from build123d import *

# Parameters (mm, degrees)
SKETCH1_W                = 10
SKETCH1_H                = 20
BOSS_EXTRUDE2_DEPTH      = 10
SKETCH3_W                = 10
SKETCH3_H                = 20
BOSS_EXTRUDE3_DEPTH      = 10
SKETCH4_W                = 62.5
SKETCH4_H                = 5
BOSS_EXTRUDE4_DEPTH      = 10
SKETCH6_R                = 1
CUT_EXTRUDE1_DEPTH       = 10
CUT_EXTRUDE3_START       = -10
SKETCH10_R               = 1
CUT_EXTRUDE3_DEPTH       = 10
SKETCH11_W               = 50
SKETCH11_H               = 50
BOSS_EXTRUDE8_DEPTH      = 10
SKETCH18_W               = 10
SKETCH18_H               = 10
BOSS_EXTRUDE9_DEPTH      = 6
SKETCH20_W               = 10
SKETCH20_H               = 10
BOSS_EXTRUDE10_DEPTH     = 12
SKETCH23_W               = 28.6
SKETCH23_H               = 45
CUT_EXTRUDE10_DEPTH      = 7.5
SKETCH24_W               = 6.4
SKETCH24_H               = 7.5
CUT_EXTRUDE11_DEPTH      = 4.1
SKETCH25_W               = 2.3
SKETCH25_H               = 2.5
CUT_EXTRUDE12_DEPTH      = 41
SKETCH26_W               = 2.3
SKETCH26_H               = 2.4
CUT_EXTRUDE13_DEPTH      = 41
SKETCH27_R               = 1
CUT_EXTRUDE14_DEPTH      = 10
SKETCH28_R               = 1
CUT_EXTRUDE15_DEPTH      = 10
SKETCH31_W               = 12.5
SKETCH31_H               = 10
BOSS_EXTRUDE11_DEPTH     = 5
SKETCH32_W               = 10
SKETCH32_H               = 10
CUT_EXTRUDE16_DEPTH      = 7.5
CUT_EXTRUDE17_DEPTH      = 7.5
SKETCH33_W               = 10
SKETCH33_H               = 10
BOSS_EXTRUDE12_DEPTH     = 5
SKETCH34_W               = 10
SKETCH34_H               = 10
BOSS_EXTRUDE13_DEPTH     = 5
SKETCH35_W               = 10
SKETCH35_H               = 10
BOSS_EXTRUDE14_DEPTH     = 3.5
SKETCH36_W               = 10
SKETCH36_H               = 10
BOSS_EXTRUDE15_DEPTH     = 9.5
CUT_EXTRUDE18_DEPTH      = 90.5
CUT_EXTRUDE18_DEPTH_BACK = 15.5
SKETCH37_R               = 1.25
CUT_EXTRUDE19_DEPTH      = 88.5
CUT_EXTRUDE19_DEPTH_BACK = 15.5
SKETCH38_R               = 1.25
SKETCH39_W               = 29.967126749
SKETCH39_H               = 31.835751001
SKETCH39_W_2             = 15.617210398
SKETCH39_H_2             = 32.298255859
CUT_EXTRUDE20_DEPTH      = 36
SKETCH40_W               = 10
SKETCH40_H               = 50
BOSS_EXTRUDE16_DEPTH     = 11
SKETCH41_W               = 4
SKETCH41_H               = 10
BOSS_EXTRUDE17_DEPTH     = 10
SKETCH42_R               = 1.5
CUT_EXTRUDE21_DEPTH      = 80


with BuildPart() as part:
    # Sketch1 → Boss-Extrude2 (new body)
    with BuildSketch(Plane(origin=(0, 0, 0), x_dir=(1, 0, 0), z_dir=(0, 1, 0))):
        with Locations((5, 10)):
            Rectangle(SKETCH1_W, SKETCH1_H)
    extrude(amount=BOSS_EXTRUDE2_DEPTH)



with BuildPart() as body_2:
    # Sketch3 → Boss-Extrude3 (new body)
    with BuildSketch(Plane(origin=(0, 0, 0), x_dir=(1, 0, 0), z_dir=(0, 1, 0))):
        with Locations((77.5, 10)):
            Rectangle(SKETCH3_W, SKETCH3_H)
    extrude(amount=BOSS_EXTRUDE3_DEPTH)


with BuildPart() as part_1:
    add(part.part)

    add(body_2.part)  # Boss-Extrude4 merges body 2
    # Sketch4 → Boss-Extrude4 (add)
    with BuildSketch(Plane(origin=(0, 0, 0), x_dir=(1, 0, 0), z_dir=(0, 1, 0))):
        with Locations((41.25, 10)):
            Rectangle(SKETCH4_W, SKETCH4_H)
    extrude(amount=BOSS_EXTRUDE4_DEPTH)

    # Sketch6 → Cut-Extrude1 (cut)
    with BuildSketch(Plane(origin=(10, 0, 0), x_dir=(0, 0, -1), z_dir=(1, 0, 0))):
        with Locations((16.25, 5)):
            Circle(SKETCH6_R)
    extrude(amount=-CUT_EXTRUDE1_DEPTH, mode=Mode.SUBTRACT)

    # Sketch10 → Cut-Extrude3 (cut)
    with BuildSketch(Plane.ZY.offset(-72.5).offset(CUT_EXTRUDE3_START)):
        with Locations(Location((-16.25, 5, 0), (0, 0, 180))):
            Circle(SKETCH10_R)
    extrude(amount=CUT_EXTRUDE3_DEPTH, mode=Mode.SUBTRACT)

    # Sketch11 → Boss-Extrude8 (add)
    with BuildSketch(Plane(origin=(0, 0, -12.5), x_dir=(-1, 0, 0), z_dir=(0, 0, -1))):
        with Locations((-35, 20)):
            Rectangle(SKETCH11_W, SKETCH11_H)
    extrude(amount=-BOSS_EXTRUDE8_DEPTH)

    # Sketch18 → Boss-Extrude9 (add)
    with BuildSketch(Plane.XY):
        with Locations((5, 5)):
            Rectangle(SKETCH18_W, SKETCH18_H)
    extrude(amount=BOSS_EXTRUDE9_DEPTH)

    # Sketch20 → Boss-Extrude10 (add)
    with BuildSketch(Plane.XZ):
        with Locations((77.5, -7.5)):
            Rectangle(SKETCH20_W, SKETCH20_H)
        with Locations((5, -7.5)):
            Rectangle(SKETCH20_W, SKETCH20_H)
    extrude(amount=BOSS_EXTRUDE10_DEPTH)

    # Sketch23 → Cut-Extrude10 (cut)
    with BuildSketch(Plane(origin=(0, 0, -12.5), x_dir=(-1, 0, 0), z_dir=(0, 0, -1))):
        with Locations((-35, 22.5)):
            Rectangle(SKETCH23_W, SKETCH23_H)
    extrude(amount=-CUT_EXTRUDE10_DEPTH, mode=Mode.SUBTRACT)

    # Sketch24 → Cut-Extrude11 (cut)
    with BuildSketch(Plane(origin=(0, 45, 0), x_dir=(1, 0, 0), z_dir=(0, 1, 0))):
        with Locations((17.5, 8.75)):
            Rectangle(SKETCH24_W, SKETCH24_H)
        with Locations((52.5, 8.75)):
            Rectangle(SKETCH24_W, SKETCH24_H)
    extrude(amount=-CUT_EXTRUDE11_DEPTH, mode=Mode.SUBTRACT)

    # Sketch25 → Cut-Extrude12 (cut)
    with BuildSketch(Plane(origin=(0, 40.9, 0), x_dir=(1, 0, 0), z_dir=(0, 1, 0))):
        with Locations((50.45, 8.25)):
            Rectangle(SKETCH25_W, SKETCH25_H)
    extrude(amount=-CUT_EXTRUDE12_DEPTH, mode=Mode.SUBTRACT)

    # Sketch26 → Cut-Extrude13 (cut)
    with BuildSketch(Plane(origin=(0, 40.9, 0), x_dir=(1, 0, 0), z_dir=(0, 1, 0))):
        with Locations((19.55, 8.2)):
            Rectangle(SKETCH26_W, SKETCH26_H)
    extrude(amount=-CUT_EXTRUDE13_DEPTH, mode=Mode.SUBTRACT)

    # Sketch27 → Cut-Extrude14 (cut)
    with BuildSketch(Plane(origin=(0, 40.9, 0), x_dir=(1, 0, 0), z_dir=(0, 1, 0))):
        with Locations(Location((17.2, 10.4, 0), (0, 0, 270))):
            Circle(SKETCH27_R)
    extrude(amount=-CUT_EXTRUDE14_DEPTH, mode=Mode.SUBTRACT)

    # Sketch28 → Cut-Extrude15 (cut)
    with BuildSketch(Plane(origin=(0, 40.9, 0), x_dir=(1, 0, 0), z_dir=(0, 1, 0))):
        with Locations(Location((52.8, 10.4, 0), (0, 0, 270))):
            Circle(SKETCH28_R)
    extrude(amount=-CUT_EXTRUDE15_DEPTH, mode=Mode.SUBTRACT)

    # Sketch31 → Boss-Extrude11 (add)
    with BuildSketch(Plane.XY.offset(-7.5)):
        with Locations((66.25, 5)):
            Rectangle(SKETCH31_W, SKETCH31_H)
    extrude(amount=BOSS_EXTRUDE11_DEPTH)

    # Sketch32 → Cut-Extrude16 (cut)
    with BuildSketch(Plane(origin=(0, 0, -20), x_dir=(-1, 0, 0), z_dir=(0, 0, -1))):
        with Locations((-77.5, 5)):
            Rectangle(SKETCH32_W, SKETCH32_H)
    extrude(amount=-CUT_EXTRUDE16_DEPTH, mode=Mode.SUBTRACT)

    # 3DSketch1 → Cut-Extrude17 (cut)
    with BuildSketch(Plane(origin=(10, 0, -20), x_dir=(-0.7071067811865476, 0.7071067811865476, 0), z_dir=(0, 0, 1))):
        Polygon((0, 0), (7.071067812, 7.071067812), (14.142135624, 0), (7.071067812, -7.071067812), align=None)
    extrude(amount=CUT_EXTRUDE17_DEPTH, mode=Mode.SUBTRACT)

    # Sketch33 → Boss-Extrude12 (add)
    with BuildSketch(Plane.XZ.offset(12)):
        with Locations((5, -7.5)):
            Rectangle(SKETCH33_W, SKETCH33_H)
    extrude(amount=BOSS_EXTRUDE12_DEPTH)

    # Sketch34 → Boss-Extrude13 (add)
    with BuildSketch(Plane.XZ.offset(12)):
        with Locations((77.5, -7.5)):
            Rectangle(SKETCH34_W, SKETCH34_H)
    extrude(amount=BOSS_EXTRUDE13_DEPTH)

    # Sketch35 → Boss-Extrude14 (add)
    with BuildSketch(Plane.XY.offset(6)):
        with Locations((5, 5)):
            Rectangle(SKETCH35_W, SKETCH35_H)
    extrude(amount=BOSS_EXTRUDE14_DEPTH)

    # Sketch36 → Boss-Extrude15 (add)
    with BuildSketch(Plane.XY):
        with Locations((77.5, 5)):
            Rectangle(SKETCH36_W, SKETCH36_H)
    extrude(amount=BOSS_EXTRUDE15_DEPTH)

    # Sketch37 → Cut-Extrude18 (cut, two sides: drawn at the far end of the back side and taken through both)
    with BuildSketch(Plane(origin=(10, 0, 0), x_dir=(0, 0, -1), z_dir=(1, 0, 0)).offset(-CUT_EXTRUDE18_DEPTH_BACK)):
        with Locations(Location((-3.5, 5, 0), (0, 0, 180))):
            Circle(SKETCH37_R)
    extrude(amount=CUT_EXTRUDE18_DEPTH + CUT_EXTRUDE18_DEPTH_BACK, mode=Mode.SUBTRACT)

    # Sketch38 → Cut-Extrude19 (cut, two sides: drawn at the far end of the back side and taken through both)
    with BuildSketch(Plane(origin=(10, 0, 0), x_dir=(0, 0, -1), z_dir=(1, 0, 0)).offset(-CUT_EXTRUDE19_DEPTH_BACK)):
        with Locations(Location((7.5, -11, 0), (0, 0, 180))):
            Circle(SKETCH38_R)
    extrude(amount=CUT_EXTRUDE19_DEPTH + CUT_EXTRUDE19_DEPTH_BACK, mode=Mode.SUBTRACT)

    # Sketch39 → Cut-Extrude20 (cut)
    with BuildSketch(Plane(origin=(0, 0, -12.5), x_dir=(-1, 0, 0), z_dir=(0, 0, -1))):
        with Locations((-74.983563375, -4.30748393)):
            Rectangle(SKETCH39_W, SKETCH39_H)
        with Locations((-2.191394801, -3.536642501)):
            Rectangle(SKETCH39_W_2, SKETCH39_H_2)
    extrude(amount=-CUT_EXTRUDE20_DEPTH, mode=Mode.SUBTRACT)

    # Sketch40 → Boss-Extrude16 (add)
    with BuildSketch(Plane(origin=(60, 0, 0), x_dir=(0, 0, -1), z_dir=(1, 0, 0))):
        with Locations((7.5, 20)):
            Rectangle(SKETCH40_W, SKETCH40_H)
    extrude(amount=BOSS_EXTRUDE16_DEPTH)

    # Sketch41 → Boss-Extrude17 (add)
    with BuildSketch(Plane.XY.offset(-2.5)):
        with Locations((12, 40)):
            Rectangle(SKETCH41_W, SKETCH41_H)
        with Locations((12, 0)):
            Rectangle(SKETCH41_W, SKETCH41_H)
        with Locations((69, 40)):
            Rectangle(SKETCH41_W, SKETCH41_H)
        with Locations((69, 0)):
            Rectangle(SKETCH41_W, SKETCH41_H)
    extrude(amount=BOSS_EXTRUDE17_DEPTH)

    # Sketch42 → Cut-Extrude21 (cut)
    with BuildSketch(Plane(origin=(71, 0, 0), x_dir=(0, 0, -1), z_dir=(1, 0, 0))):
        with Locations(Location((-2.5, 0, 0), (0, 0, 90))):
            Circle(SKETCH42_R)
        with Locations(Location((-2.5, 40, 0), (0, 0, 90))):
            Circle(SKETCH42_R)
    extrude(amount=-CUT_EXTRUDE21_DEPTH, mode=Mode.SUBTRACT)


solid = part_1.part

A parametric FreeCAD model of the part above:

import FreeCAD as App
import Part
import Sketcher


def add_polygon(sketch, points):
    """Adds a closed chain of lines whose ends are joined by coincident constraints."""
    first, n = sketch.GeometryCount, len(points)
    for a, b in zip(points, points[1:] + points[:1]):
        sketch.addGeometry(Part.LineSegment(App.Vector(*a, 0), App.Vector(*b, 0)), False)
    for i in range(n):
        sketch.addConstraint(Sketcher.Constraint("Coincident", first + i, 2, first + (i + 1) % n, 1))

doc = App.newDocument("Part")
body = doc.addObject("PartDesign::Body", "Body")

sketch1 = body.newObject("Sketcher::SketchObject", "Sketch")
sketch1.AttachmentSupport = (doc.getObject("XZ_Plane"), [""])
sketch1.MapMode = "FlatFace"
add_polygon(sketch1, [(0, -20), (0, 0), (10, 0), (10, -20)])
sketch1.addConstraint([
    Sketcher.Constraint("Vertical", 0),
    Sketcher.Constraint("Horizontal", 1),
    Sketcher.Constraint("Vertical", 2),
    Sketcher.Constraint("Horizontal", 3),
    Sketcher.Constraint("Coincident", 0, 2, -1, 1),
    Sketcher.Constraint("DistanceX", 1, 1, 1, 2, 10.0),
    Sketcher.Constraint("DistanceY", 0, 1, 0, 2, 20.0),
])
pad1 = body.newObject("PartDesign::Pad", "Pad")
pad1.Profile = sketch1
pad1.Length = 10
pad1.Reversed = True
body2 = doc.addObject("PartDesign::Body", "Body001")

sketch2 = body2.newObject("Sketcher::SketchObject", "Sketch001")
sketch2.AttachmentSupport = (doc.getObject("XZ_Plane001"), [""])
sketch2.MapMode = "FlatFace"
add_polygon(sketch2, [(72.5, -20), (72.5, 0), (82.5, 0), (82.5, -20)])
sketch2.addConstraint([
    Sketcher.Constraint("Vertical", 0),
    Sketcher.Constraint("Horizontal", 1),
    Sketcher.Constraint("Vertical", 2),
    Sketcher.Constraint("Horizontal", 3),
    Sketcher.Constraint("PointOnObject", 0, 2, -1),
    Sketcher.Constraint("DistanceX", 1, 1, 1, 2, 10.0),
    Sketcher.Constraint("DistanceY", 0, 1, 0, 2, 20.0),
    Sketcher.Constraint("DistanceX", -1, 1, 0, 2, 72.5),
])
pad2 = body2.newObject("PartDesign::Pad", "Pad001")
pad2.Profile = sketch2
pad2.Length = 10
pad2.Reversed = True
body.AllowCompound = True
doc.recompute()

boolean = body.newObject("PartDesign::Boolean", "Boolean")
boolean.Type = "Fuse"
boolean.addObjects([body2])

sketch3 = body.newObject("Sketcher::SketchObject", "Sketch002")
sketch3.AttachmentSupport = (doc.getObject("XZ_Plane"), [""])
sketch3.MapMode = "FlatFace"
add_polygon(sketch3, [(10, -12.5), (10, -7.5), (72.5, -7.5), (72.5, -12.5)])
sketch3.addConstraint([
    Sketcher.Constraint("Vertical", 0),
    Sketcher.Constraint("Horizontal", 1),
    Sketcher.Constraint("Vertical", 2),
    Sketcher.Constraint("Horizontal", 3),
    Sketcher.Constraint("DistanceY", 0, 1, 0, 2, 5.0),
    Sketcher.Constraint("DistanceX", 1, 1, 1, 2, 62.5),
    Sketcher.Constraint("DistanceX", -1, 1, 0, 2, 10.0),
    Sketcher.Constraint("DistanceY", 0, 2, -1, 1, 7.5),
])
pad3 = body.newObject("PartDesign::Pad", "Pad002")
pad3.Profile = sketch3
pad3.Length = 10
pad3.Reversed = True

sketch4 = body.newObject("Sketcher::SketchObject", "Sketch003")
sketch4.AttachmentSupport = (doc.getObject("YZ_Plane"), [""])
sketch4.MapMode = "FlatFace"
sketch4.AttachmentOffset = App.Placement(App.Vector(0, 0, 10), App.Rotation())
sketch4.addGeometry(Part.Circle(App.Vector(5, -16.25, 0), App.Vector(0, 0, 1), 1), False)
sketch4.addConstraint([
    Sketcher.Constraint("Diameter", 0, 2.0),
    Sketcher.Constraint("DistanceX", -1, 1, 0, 3, 5.0),
    Sketcher.Constraint("DistanceY", 0, 3, -1, 1, 16.25),
])
pocket1 = body.newObject("PartDesign::Pocket", "Pocket")
pocket1.Profile = sketch4
pocket1.Length = 10

sketch5 = body.newObject("Sketcher::SketchObject", "Sketch004")
sketch5.AttachmentSupport = (doc.getObject("YZ_Plane"), [""])
sketch5.MapMode = "FlatFace"
sketch5.AttachmentOffset = App.Placement(App.Vector(0, 0, 82.5), App.Rotation())
sketch5.addGeometry(Part.Circle(App.Vector(5, -16.25, 0), App.Vector(0, 0, 1), 1), False)
sketch5.addConstraint([
    Sketcher.Constraint("Diameter", 0, 2.0),
    Sketcher.Constraint("DistanceX", -1, 1, 0, 3, 5.0),
    Sketcher.Constraint("DistanceY", 0, 3, -1, 1, 16.25),
])
pocket2 = body.newObject("PartDesign::Pocket", "Pocket001")
pocket2.Profile = sketch5
pocket2.Length = 10

sketch6 = body.newObject("Sketcher::SketchObject", "Sketch005")
sketch6.AttachmentSupport = (doc.getObject("XY_Plane"), [""])
sketch6.MapMode = "FlatFace"
sketch6.AttachmentOffset = App.Placement(App.Vector(0, 0, -12.5), App.Rotation())
add_polygon(sketch6, [(60, 45), (60, -5), (10, -5), (10, 45)])
sketch6.addConstraint([
    Sketcher.Constraint("Vertical", 0),
    Sketcher.Constraint("Horizontal", 1),
    Sketcher.Constraint("Vertical", 2),
    Sketcher.Constraint("Horizontal", 3),
    Sketcher.Constraint("Equal", 3, 0),
    Sketcher.Constraint("DistanceX", 1, 2, 1, 1, 50.0),
    Sketcher.Constraint("DistanceX", -1, 1, 0, 2, 60.0),
    Sketcher.Constraint("DistanceY", 0, 2, -1, 1, 5.0),
])
pad4 = body.newObject("PartDesign::Pad", "Pad003")
pad4.Profile = sketch6
pad4.Length = 10

sketch7 = body.newObject("Sketcher::SketchObject", "Sketch006")
sketch7.AttachmentSupport = (doc.getObject("XY_Plane"), [""])
sketch7.MapMode = "FlatFace"
add_polygon(sketch7, [(0, 10), (0, 0), (10, 0), (10, 10)])
sketch7.addConstraint([
    Sketcher.Constraint("Vertical", 0),
    Sketcher.Constraint("Horizontal", 1),
    Sketcher.Constraint("Vertical", 2),
    Sketcher.Constraint("Horizontal", 3),
    Sketcher.Constraint("Coincident", 0, 2, -1, 1),
    Sketcher.Constraint("Equal", 3, 0),
    Sketcher.Constraint("DistanceX", 1, 1, 1, 2, 10.0),
])
pad5 = body.newObject("PartDesign::Pad", "Pad004")
pad5.Profile = sketch7
pad5.Length = 6

sketch8 = body.newObject("Sketcher::SketchObject", "Sketch007")
sketch8.AttachmentSupport = (doc.getObject("XZ_Plane"), [""])
sketch8.MapMode = "FlatFace"
add_polygon(sketch8, [(72.5, -2.5), (72.5, -12.5), (82.5, -12.5), (82.5, -2.5)])
add_polygon(sketch8, [(0, -2.5), (0, -12.5), (10, -12.5), (10, -2.5)])
sketch8.addConstraint([
    Sketcher.Constraint("Vertical", 0),
    Sketcher.Constraint("Horizontal", 1),
    Sketcher.Constraint("Vertical", 2),
    Sketcher.Constraint("Horizontal", 3),
    Sketcher.Constraint("Vertical", 4),
    Sketcher.Constraint("Horizontal", 5),
    Sketcher.Constraint("Vertical", 6),
    Sketcher.Constraint("Horizontal", 7),
    Sketcher.Constraint("PointOnObject", 4, 2, -2),
    Sketcher.Constraint("Horizontal", 1, 2, 4, 2),
    Sketcher.Constraint("Horizontal", 3, 2, 6, 2),
    Sketcher.Constraint("Equal", 3, 5),
    Sketcher.Constraint("Equal", 7, 0),
    Sketcher.Constraint("DistanceX", 1, 1, 1, 2, 10.0),
    Sketcher.Constraint("DistanceX", -1, 1, 0, 2, 72.5),
    Sketcher.Constraint("DistanceY", 0, 2, -1, 1, 12.5),
])
pad6 = body.newObject("PartDesign::Pad", "Pad005")
pad6.Profile = sketch8
pad6.Length = 12

sketch9 = body.newObject("Sketcher::SketchObject", "Sketch008")
sketch9.AttachmentSupport = (doc.getObject("XY_Plane"), [""])
sketch9.MapMode = "FlatFace"
sketch9.AttachmentOffset = App.Placement(App.Vector(0, 0, -12.5), App.Rotation())
add_polygon(sketch9, [(49.3, 45), (49.3, 0), (20.7, 0), (20.7, 45)])
sketch9.addConstraint([
    Sketcher.Constraint("Vertical", 0),
    Sketcher.Constraint("Horizontal", 1),
    Sketcher.Constraint("Vertical", 2),
    Sketcher.Constraint("Horizontal", 3),
    Sketcher.Constraint("PointOnObject", 0, 2, -1),
    Sketcher.Constraint("DistanceY", 0, 2, 0, 1, 45.0),
    Sketcher.Constraint("DistanceX", 1, 2, 1, 1, 28.6),
    Sketcher.Constraint("DistanceX", -1, 1, 0, 2, 49.3),
])
pocket3 = body.newObject("PartDesign::Pocket", "Pocket002")
pocket3.Profile = sketch9
pocket3.Length = 7.5
pocket3.Reversed = True

sketch10 = body.newObject("Sketcher::SketchObject", "Sketch009")
sketch10.AttachmentSupport = (doc.getObject("XZ_Plane"), [""])
sketch10.MapMode = "FlatFace"
sketch10.AttachmentOffset = App.Placement(App.Vector(0, 0, -45), App.Rotation())
add_polygon(sketch10, [(14.3, -12.5), (14.3, -5), (20.7, -5), (20.7, -12.5)])
add_polygon(sketch10, [(49.3, -12.5), (49.3, -5), (55.7, -5), (55.7, -12.5)])
sketch10.addConstraint([
    Sketcher.Constraint("Vertical", 0),
    Sketcher.Constraint("Horizontal", 1),
    Sketcher.Constraint("Vertical", 2),
    Sketcher.Constraint("Horizontal", 3),
    Sketcher.Constraint("Vertical", 4),
    Sketcher.Constraint("Horizontal", 5),
    Sketcher.Constraint("Vertical", 6),
    Sketcher.Constraint("Horizontal", 7),
    Sketcher.Constraint("Horizontal", 1, 2, 4, 2),
    Sketcher.Constraint("Horizontal", 3, 2, 6, 2),
    Sketcher.Constraint("Equal", 3, 5),
    Sketcher.Constraint("DistanceX", 1, 1, 1, 2, 6.4),
    Sketcher.Constraint("DistanceY", 0, 1, 0, 2, 7.5),
    Sketcher.Constraint("DistanceY", 0, 2, -1, 1, 5.0),
    Sketcher.Constraint("DistanceX", 0, 2, 4, 2, 35.0),
    Sketcher.Constraint("DistanceX", -1, 1, 0, 2, 14.3),
])
pocket4 = body.newObject("PartDesign::Pocket", "Pocket003")
pocket4.Profile = sketch10
pocket4.Length = 4.1
pocket4.Reversed = True

sketch11 = body.newObject("Sketcher::SketchObject", "Sketch010")
sketch11.AttachmentSupport = (doc.getObject("XZ_Plane"), [""])
sketch11.MapMode = "FlatFace"
sketch11.AttachmentOffset = App.Placement(App.Vector(0, 0, -40.9), App.Rotation())
add_polygon(sketch11, [(49.3, -9.5), (49.3, -7), (51.6, -7), (51.6, -9.5)])
sketch11.addConstraint([
    Sketcher.Constraint("Vertical", 0),
    Sketcher.Constraint("Horizontal", 1),
    Sketcher.Constraint("Vertical", 2),
    Sketcher.Constraint("Horizontal", 3),
    Sketcher.Constraint("DistanceX", 1, 1, 1, 2, 2.3),
    Sketcher.Constraint("DistanceY", 0, 1, 0, 2, 2.5),
    Sketcher.Constraint("DistanceY", 0, 2, -1, 1, 7.0),
    Sketcher.Constraint("DistanceX", -1, 1, 0, 2, 49.3),
])
pocket5 = body.newObject("PartDesign::Pocket", "Pocket004")
pocket5.Profile = sketch11
pocket5.Length = 41
pocket5.Reversed = True

sketch12 = body.newObject("Sketcher::SketchObject", "Sketch011")
sketch12.AttachmentSupport = (doc.getObject("XZ_Plane"), [""])
sketch12.MapMode = "FlatFace"
sketch12.AttachmentOffset = App.Placement(App.Vector(0, 0, -40.9), App.Rotation())
add_polygon(sketch12, [(18.4, -9.4), (18.4, -7), (20.7, -7), (20.7, -9.4)])
sketch12.addConstraint([
    Sketcher.Constraint("Vertical", 0),
    Sketcher.Constraint("Horizontal", 1),
    Sketcher.Constraint("Vertical", 2),
    Sketcher.Constraint("Horizontal", 3),
    Sketcher.Constraint("DistanceX", 1, 1, 1, 2, 2.3),
    Sketcher.Constraint("DistanceY", 0, 1, 0, 2, 2.4),
    Sketcher.Constraint("DistanceY", 0, 2, -1, 1, 7.0),
    Sketcher.Constraint("DistanceX", -1, 1, 0, 2, 18.4),
])
pocket6 = body.newObject("PartDesign::Pocket", "Pocket005")
pocket6.Profile = sketch12
pocket6.Length = 41
pocket6.Reversed = True

sketch13 = body.newObject("Sketcher::SketchObject", "Sketch012")
sketch13.AttachmentSupport = (doc.getObject("XZ_Plane"), [""])
sketch13.MapMode = "FlatFace"
sketch13.AttachmentOffset = App.Placement(App.Vector(0, 0, -40.9), App.Rotation())
sketch13.addGeometry(Part.Circle(App.Vector(17.2, -10.4, 0), App.Vector(0, 0, 1), 1), False)
sketch13.addConstraint([
    Sketcher.Constraint("Diameter", 0, 2.0),
    Sketcher.Constraint("DistanceX", -1, 1, 0, 3, 17.2),
    Sketcher.Constraint("DistanceY", 0, 3, -1, 1, 10.4),
])
pocket7 = body.newObject("PartDesign::Pocket", "Pocket006")
pocket7.Profile = sketch13
pocket7.Length = 10
pocket7.Reversed = True

sketch14 = body.newObject("Sketcher::SketchObject", "Sketch013")
sketch14.AttachmentSupport = (doc.getObject("XZ_Plane"), [""])
sketch14.MapMode = "FlatFace"
sketch14.AttachmentOffset = App.Placement(App.Vector(0, 0, -40.9), App.Rotation())
sketch14.addGeometry(Part.Circle(App.Vector(52.8, -10.4, 0), App.Vector(0, 0, 1), 1), False)
sketch14.addConstraint([
    Sketcher.Constraint("Diameter", 0, 2.0),
    Sketcher.Constraint("DistanceX", -1, 1, 0, 3, 52.8),
    Sketcher.Constraint("DistanceY", 0, 3, -1, 1, 10.4),
])
pocket8 = body.newObject("PartDesign::Pocket", "Pocket007")
pocket8.Profile = sketch14
pocket8.Length = 10
pocket8.Reversed = True

sketch15 = body.newObject("Sketcher::SketchObject", "Sketch014")
sketch15.AttachmentSupport = (doc.getObject("XY_Plane"), [""])
sketch15.MapMode = "FlatFace"
sketch15.AttachmentOffset = App.Placement(App.Vector(0, 0, -7.5), App.Rotation())
add_polygon(sketch15, [(60, 10), (60, 0), (72.5, 0), (72.5, 10)])
sketch15.addConstraint([
    Sketcher.Constraint("Vertical", 0),
    Sketcher.Constraint("Horizontal", 1),
    Sketcher.Constraint("Vertical", 2),
    Sketcher.Constraint("Horizontal", 3),
    Sketcher.Constraint("PointOnObject", 0, 2, -1),
    Sketcher.Constraint("DistanceY", 0, 2, 0, 1, 10.0),
    Sketcher.Constraint("DistanceX", 1, 1, 1, 2, 12.5),
    Sketcher.Constraint("DistanceX", -1, 1, 0, 2, 60.0),
])
pad7 = body.newObject("PartDesign::Pad", "Pad006")
pad7.Profile = sketch15
pad7.Length = 5

sketch16 = body.newObject("Sketcher::SketchObject", "Sketch015")
sketch16.AttachmentSupport = (doc.getObject("XY_Plane"), [""])
sketch16.MapMode = "FlatFace"
sketch16.AttachmentOffset = App.Placement(App.Vector(0, 0, -20), App.Rotation())
add_polygon(sketch16, [(82.5, 10), (82.5, 0), (72.5, 0), (72.5, 10)])
sketch16.addConstraint([
    Sketcher.Constraint("Vertical", 0),
    Sketcher.Constraint("Horizontal", 1),
    Sketcher.Constraint("Vertical", 2),
    Sketcher.Constraint("Horizontal", 3),
    Sketcher.Constraint("PointOnObject", 0, 2, -1),
    Sketcher.Constraint("Equal", 3, 0),
    Sketcher.Constraint("DistanceX", 1, 2, 1, 1, 10.0),
    Sketcher.Constraint("DistanceX", -1, 1, 0, 2, 82.5),
])
pocket9 = body.newObject("PartDesign::Pocket", "Pocket008")
pocket9.Profile = sketch16
pocket9.Length = 7.5
pocket9.Reversed = True

sketch17 = body.newObject("Sketcher::SketchObject", "Sketch016")
sketch17.AttachmentSupport = (doc.getObject("XY_Plane"), [""])
sketch17.MapMode = "FlatFace"
sketch17.AttachmentOffset = App.Placement(App.Vector(0, 0, -20), App.Rotation())
add_polygon(sketch17, [(0, 0), (10, 0), (10, 10), (0, 10)])
sketch17.addConstraint([
    Sketcher.Constraint("Horizontal", 0),
    Sketcher.Constraint("Vertical", 1),
    Sketcher.Constraint("Horizontal", 2),
    Sketcher.Constraint("Vertical", 3),
    Sketcher.Constraint("Coincident", 3, 2, -1, 1),
    Sketcher.Constraint("Equal", 2, 1),
    Sketcher.Constraint("DistanceX", 0, 1, 0, 2, 10.0),
])
pocket10 = body.newObject("PartDesign::Pocket", "Pocket009")
pocket10.Profile = sketch17
pocket10.Length = 7.5
pocket10.Reversed = True

sketch18 = body.newObject("Sketcher::SketchObject", "Sketch017")
sketch18.AttachmentSupport = (doc.getObject("XZ_Plane"), [""])
sketch18.MapMode = "FlatFace"
sketch18.AttachmentOffset = App.Placement(App.Vector(0, 0, 12), App.Rotation())
add_polygon(sketch18, [(0, -2.5), (0, -12.5), (10, -12.5), (10, -2.5)])
sketch18.addConstraint([
    Sketcher.Constraint("Vertical", 0),
    Sketcher.Constraint("Horizontal", 1),
    Sketcher.Constraint("Vertical", 2),
    Sketcher.Constraint("Horizontal", 3),
    Sketcher.Constraint("PointOnObject", 0, 2, -2),
    Sketcher.Constraint("Equal", 3, 0),
    Sketcher.Constraint("DistanceX", 1, 1, 1, 2, 10.0),
    Sketcher.Constraint("DistanceY", 0, 2, -1, 1, 12.5),
])
pad8 = body.newObject("PartDesign::Pad", "Pad007")
pad8.Profile = sketch18
pad8.Length = 5

sketch19 = body.newObject("Sketcher::SketchObject", "Sketch018")
sketch19.AttachmentSupport = (doc.getObject("XZ_Plane"), [""])
sketch19.MapMode = "FlatFace"
sketch19.AttachmentOffset = App.Placement(App.Vector(0, 0, 12), App.Rotation())
add_polygon(sketch19, [(72.5, -2.5), (72.5, -12.5), (82.5, -12.5), (82.5, -2.5)])
sketch19.addConstraint([
    Sketcher.Constraint("Vertical", 0),
    Sketcher.Constraint("Horizontal", 1),
    Sketcher.Constraint("Vertical", 2),
    Sketcher.Constraint("Horizontal", 3),
    Sketcher.Constraint("Equal", 3, 0),
    Sketcher.Constraint("DistanceX", 1, 1, 1, 2, 10.0),
    Sketcher.Constraint("DistanceX", -1, 1, 0, 2, 72.5),
    Sketcher.Constraint("DistanceY", 0, 2, -1, 1, 12.5),
])
pad9 = body.newObject("PartDesign::Pad", "Pad008")
pad9.Profile = sketch19
pad9.Length = 5

sketch20 = body.newObject("Sketcher::SketchObject", "Sketch019")
sketch20.AttachmentSupport = (doc.getObject("XY_Plane"), [""])
sketch20.MapMode = "FlatFace"
sketch20.AttachmentOffset = App.Placement(App.Vector(0, 0, 6), App.Rotation())
add_polygon(sketch20, [(0, 10), (0, 0), (10, 0), (10, 10)])
sketch20.addConstraint([
    Sketcher.Constraint("Vertical", 0),
    Sketcher.Constraint("Horizontal", 1),
    Sketcher.Constraint("Vertical", 2),
    Sketcher.Constraint("Horizontal", 3),
    Sketcher.Constraint("Coincident", 0, 2, -1, 1),
    Sketcher.Constraint("Equal", 3, 0),
    Sketcher.Constraint("DistanceX", 1, 1, 1, 2, 10.0),
])
pad10 = body.newObject("PartDesign::Pad", "Pad009")
pad10.Profile = sketch20
pad10.Length = 3.5

sketch21 = body.newObject("Sketcher::SketchObject", "Sketch020")
sketch21.AttachmentSupport = (doc.getObject("XY_Plane"), [""])
sketch21.MapMode = "FlatFace"
add_polygon(sketch21, [(72.5, 10), (72.5, 0), (82.5, 0), (82.5, 10)])
sketch21.addConstraint([
    Sketcher.Constraint("Vertical", 0),
    Sketcher.Constraint("Horizontal", 1),
    Sketcher.Constraint("Vertical", 2),
    Sketcher.Constraint("Horizontal", 3),
    Sketcher.Constraint("PointOnObject", 0, 2, -1),
    Sketcher.Constraint("Equal", 3, 0),
    Sketcher.Constraint("DistanceX", 1, 1, 1, 2, 10.0),
    Sketcher.Constraint("DistanceX", -1, 1, 0, 2, 72.5),
])
pad11 = body.newObject("PartDesign::Pad", "Pad010")
pad11.Profile = sketch21
pad11.Length = 9.5

sketch22 = body.newObject("Sketcher::SketchObject", "Sketch021")
sketch22.AttachmentSupport = (doc.getObject("YZ_Plane"), [""])
sketch22.MapMode = "FlatFace"
sketch22.AttachmentOffset = App.Placement(App.Vector(0, 0, 10), App.Rotation())
sketch22.addGeometry(Part.Circle(App.Vector(5, 3.5, 0), App.Vector(0, 0, 1), 1.25), False)
sketch22.addConstraint([
    Sketcher.Constraint("Diameter", 0, 2.5),
    Sketcher.Constraint("DistanceX", -1, 1, 0, 3, 5.0),
    Sketcher.Constraint("DistanceY", -1, 1, 0, 3, 3.5),
])
pocket11 = body.newObject("PartDesign::Pocket", "Pocket010")
pocket11.Profile = sketch22
pocket11.Type = "ThroughAll"
pocket11.Midplane = True

sketch23 = body.newObject("Sketcher::SketchObject", "Sketch022")
sketch23.AttachmentSupport = (doc.getObject("YZ_Plane"), [""])
sketch23.MapMode = "FlatFace"
sketch23.AttachmentOffset = App.Placement(App.Vector(0, 0, 10), App.Rotation())
sketch23.addGeometry(Part.Circle(App.Vector(-11, -7.5, 0), App.Vector(0, 0, 1), 1.25), False)
sketch23.addConstraint([
    Sketcher.Constraint("Diameter", 0, 2.5),
    Sketcher.Constraint("DistanceX", 0, 3, -1, 1, 11.0),
    Sketcher.Constraint("DistanceY", 0, 3, -1, 1, 7.5),
])
pocket12 = body.newObject("PartDesign::Pocket", "Pocket011")
pocket12.Profile = sketch23
pocket12.Type = "ThroughAll"
pocket12.Midplane = True

sketch24 = body.newObject("Sketcher::SketchObject", "Sketch023")
sketch24.AttachmentSupport = (doc.getObject("XY_Plane"), [""])
sketch24.MapMode = "FlatFace"
sketch24.AttachmentOffset = App.Placement(App.Vector(0, 0, -12.5), App.Rotation())
add_polygon(sketch24, [(89.967127, 11.610392), (89.967127, -20.225359), (60, -20.225359), (60, 11.610392)])
add_polygon(sketch24, [(10, 12.612485), (10, -19.68577), (-5.61721, -19.68577), (-5.61721, 12.612485)])
sketch24.addConstraint([
    Sketcher.Constraint("Vertical", 0),
    Sketcher.Constraint("Horizontal", 1),
    Sketcher.Constraint("Vertical", 2),
    Sketcher.Constraint("Horizontal", 3),
    Sketcher.Constraint("Vertical", 4),
    Sketcher.Constraint("Horizontal", 5),
    Sketcher.Constraint("Vertical", 6),
    Sketcher.Constraint("Horizontal", 7),
    Sketcher.Constraint("DistanceX", -1, 1, 1, 2, 60.0),
    Sketcher.Constraint("DistanceX", -1, 1, 4, 2, 10.0),
    Sketcher.Constraint("DistanceX", 5, 2, 5, 1, 15.61721),
    Sketcher.Constraint("DistanceY", 0, 2, 0, 1, 31.835751),
    Sketcher.Constraint("DistanceX", 1, 2, 1, 1, 29.967127),
    Sketcher.Constraint("DistanceY", 4, 2, 4, 1, 32.298256),
    Sketcher.Constraint("DistanceY", 0, 2, -1, 1, 20.225359),
    Sketcher.Constraint("DistanceY", 4, 2, -1, 1, 19.68577),
])
pocket13 = body.newObject("PartDesign::Pocket", "Pocket012")
pocket13.Profile = sketch24
pocket13.Length = 36
pocket13.Reversed = True

sketch25 = body.newObject("Sketcher::SketchObject", "Sketch024")
sketch25.AttachmentSupport = (doc.getObject("YZ_Plane"), [""])
sketch25.MapMode = "FlatFace"
sketch25.AttachmentOffset = App.Placement(App.Vector(0, 0, 60), App.Rotation())
add_polygon(sketch25, [(45, -2.5), (-5, -2.5), (-5, -12.5), (45, -12.5)])
sketch25.addConstraint([
    Sketcher.Constraint("Horizontal", 0),
    Sketcher.Constraint("Vertical", 1),
    Sketcher.Constraint("Horizontal", 2),
    Sketcher.Constraint("Vertical", 3),
    Sketcher.Constraint("DistanceX", 0, 2, 0, 1, 50.0),
    Sketcher.Constraint("DistanceY", 1, 2, 1, 1, 10.0),
    Sketcher.Constraint("DistanceX", 0, 2, -1, 1, 5.0),
    Sketcher.Constraint("DistanceY", 0, 2, -1, 1, 2.5),
])
pad12 = body.newObject("PartDesign::Pad", "Pad011")
pad12.Profile = sketch25
pad12.Length = 11

sketch26 = body.newObject("Sketcher::SketchObject", "Sketch025")
sketch26.AttachmentSupport = (doc.getObject("XY_Plane"), [""])
sketch26.MapMode = "FlatFace"
sketch26.AttachmentOffset = App.Placement(App.Vector(0, 0, -2.5), App.Rotation())
add_polygon(sketch26, [(10, 45), (10, 35), (14, 35), (14, 45)])
add_polygon(sketch26, [(10, 5), (10, -5), (14, -5), (14, 5)])
add_polygon(sketch26, [(67, 45), (67, 35), (71, 35), (71, 45)])
add_polygon(sketch26, [(67, 5), (67, -5), (71, -5), (71, 5)])
sketch26.addConstraint([
    Sketcher.Constraint("Vertical", 0),
    Sketcher.Constraint("Horizontal", 1),
    Sketcher.Constraint("Vertical", 2),
    Sketcher.Constraint("Horizontal", 3),
    Sketcher.Constraint("Vertical", 4),
    Sketcher.Constraint("Horizontal", 5),
    Sketcher.Constraint("Vertical", 6),
    Sketcher.Constraint("Horizontal", 7),
    Sketcher.Constraint("Vertical", 8),
    Sketcher.Constraint("Horizontal", 9),
    Sketcher.Constraint("Vertical", 10),
    Sketcher.Constraint("Horizontal", 11),
    Sketcher.Constraint("Vertical", 12),
    Sketcher.Constraint("Horizontal", 13),
    Sketcher.Constraint("Vertical", 14),
    Sketcher.Constraint("Horizontal", 15),
    Sketcher.Constraint("Horizontal", 1, 2, 8, 2),
    Sketcher.Constraint("Horizontal", 3, 2, 10, 2),
    Sketcher.Constraint("Horizontal", 5, 2, 12, 2),
    Sketcher.Constraint("Horizontal", 7, 2, 14, 2),
    Sketcher.Constraint("Vertical", 3, 2, 4, 2),
    Sketcher.Constraint("Vertical", 2, 2, 5, 2),
    Sketcher.Constraint("Vertical", 11, 2, 12, 2),
    Sketcher.Constraint("Vertical", 10, 2, 13, 2),
    Sketcher.Constraint("Equal", 7, 9),
    Sketcher.Constraint("Equal", 2, 4),
    Sketcher.Constraint("DistanceX", 1, 1, 1, 2, 4.0),
    Sketcher.Constraint("DistanceY", 0, 2, 0, 1, 10.0),
    Sketcher.Constraint("DistanceX", -1, 1, 0, 2, 10.0),
    Sketcher.Constraint("DistanceY", -1, 1, 0, 2, 35.0),
    Sketcher.Constraint("DistanceY", 4, 2, -1, 1, 5.0),
    Sketcher.Constraint("DistanceX", -1, 1, 8, 2, 67.0),
])
pad13 = body.newObject("PartDesign::Pad", "Pad012")
pad13.Profile = sketch26
pad13.Length = 10

sketch27 = body.newObject("Sketcher::SketchObject", "Sketch026")
sketch27.AttachmentSupport = (doc.getObject("YZ_Plane"), [""])
sketch27.MapMode = "FlatFace"
sketch27.AttachmentOffset = App.Placement(App.Vector(0, 0, 71), App.Rotation())
sketch27.addGeometry([
    Part.Circle(App.Vector(0, 2.5, 0), App.Vector(0, 0, 1), 1.5),
    Part.Circle(App.Vector(40, 2.5, 0), App.Vector(0, 0, 1), 1.5),
], False)
sketch27.addConstraint([
    Sketcher.Constraint("Equal", 0, 1),
    Sketcher.Constraint("PointOnObject", 0, 3, -2),
    Sketcher.Constraint("Horizontal", 0, 3, 1, 3),
    Sketcher.Constraint("Diameter", 0, 3.0),
    Sketcher.Constraint("DistanceX", -1, 1, 1, 3, 40.0),
    Sketcher.Constraint("DistanceY", -1, 1, 0, 3, 2.5),
])
pocket14 = body.newObject("PartDesign::Pocket", "Pocket013")
pocket14.Profile = sketch27
pocket14.Length = 80

doc.recompute()
